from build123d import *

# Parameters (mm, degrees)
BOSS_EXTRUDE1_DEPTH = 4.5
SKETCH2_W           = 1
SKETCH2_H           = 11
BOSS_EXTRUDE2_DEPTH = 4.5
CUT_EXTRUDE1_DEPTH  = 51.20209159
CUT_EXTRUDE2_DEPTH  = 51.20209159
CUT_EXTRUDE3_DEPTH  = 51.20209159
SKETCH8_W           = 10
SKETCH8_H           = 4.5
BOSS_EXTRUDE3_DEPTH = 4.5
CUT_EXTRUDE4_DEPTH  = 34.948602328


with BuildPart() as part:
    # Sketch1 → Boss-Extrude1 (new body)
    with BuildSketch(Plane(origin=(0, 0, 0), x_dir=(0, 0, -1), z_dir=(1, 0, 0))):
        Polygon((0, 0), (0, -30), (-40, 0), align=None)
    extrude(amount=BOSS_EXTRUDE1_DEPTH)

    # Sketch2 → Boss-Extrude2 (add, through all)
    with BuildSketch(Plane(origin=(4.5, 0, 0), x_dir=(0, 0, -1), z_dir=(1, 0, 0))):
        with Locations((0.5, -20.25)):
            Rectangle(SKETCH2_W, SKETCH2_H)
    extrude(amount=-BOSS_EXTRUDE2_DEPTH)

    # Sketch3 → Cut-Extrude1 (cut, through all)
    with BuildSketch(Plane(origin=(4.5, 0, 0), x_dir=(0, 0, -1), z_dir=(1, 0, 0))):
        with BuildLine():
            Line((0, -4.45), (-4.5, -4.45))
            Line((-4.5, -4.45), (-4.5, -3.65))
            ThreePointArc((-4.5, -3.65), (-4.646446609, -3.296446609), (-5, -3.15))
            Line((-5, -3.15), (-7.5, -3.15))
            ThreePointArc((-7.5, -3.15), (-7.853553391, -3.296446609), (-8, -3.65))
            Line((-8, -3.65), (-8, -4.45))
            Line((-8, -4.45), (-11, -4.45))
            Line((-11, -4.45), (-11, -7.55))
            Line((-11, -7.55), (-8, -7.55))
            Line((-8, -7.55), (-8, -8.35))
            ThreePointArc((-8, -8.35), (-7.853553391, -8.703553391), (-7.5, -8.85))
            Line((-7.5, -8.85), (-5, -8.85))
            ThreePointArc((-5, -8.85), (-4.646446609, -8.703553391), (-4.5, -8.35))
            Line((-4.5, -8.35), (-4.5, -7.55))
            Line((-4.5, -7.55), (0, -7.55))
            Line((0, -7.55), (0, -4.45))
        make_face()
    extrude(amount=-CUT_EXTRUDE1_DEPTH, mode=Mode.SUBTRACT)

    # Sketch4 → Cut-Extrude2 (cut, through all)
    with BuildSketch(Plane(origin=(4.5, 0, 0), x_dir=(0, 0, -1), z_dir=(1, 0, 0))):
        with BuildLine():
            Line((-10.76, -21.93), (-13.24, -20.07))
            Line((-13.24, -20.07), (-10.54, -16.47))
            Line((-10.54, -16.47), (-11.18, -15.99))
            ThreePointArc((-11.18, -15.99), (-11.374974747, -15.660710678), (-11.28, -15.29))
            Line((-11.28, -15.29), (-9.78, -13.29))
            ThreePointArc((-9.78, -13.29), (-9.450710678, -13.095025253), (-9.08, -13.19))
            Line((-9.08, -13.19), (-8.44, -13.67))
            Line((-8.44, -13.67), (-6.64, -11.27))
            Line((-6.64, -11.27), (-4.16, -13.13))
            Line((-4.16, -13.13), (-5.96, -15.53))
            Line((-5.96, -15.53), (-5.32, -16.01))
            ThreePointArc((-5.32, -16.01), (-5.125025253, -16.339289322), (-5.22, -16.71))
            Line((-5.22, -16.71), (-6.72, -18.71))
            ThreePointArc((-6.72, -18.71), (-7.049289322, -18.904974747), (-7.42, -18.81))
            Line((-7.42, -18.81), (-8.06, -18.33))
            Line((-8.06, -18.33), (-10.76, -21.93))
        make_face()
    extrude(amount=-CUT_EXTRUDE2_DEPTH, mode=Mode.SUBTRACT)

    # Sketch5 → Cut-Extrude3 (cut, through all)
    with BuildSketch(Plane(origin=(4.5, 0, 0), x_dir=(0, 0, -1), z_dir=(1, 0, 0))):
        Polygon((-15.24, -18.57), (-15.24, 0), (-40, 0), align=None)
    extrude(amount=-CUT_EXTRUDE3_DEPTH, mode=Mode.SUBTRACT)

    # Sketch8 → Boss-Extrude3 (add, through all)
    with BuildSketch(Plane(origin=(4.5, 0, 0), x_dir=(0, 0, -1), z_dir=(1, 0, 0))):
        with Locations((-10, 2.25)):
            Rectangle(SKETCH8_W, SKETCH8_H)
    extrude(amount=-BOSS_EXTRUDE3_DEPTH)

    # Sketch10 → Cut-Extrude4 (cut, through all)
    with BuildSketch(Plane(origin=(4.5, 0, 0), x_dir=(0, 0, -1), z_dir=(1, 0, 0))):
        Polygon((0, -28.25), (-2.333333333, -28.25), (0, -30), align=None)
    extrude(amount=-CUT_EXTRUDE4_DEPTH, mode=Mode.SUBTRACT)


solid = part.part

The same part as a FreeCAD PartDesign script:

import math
import FreeCAD as App
import Part
import Sketcher
from FreeCAD import Vector
Q = App.Units.Quantity


def add_polygon(sketch, points):
    """Adds a closed chain of lines whose ends are joined by coincident constraints."""
    first, n = sketch.GeometryCount, len(points)
    for a, b in zip(points, points[1:] + points[:1]):
        sketch.addGeometry(Part.LineSegment(App.Vector(*a, 0), App.Vector(*b, 0)), False)
    for i in range(n):
        sketch.addConstraint(Sketcher.Constraint("Coincident", first + i, 2, first + (i + 1) % n, 1))

doc = App.newDocument("Part")
body = doc.addObject("PartDesign::Body", "Body")

sketch1 = body.newObject("Sketcher::SketchObject", "Sketch")
sketch1.AttachmentSupport = (doc.getObject("YZ_Plane"), [""])
sketch1.MapMode = "FlatFace"
add_polygon(sketch1, [(-30, 0), (0, 0), (0, 40)])
sketch1.addConstraint(Sketcher.Constraint("Horizontal", 0))
sketch1.addConstraint(Sketcher.Constraint("Vertical", 1))
sketch1.addConstraint(Sketcher.Constraint("Coincident", 0, 2, -1, 1))
sketch1.addConstraint(Sketcher.Constraint("DistanceX", 0, 1, 0, 2, Q("30 mm")))
sketch1.addConstraint(Sketcher.Constraint("DistanceY", 1, 1, 1, 2, Q("40 mm")))
pad1 = body.newObject("PartDesign::Pad", "Pad")
pad1.Profile = sketch1
pad1.Length = 4.5

sketch2 = body.newObject("Sketcher::SketchObject", "Sketch001")
sketch2.AttachmentSupport = (doc.getObject("YZ_Plane"), [""])
sketch2.MapMode = "FlatFace"
sketch2.AttachmentOffset = App.Placement(Vector(0, 0, 4.5), App.Rotation())
add_polygon(sketch2, [(-14.8, 0), (-25.8, 0), (-25.8, -1), (-14.8, -1)])
sketch2.addConstraint(Sketcher.Constraint("Horizontal", 0))
sketch2.addConstraint(Sketcher.Constraint("Vertical", 1))
sketch2.addConstraint(Sketcher.Constraint("Horizontal", 2))
sketch2.addConstraint(Sketcher.Constraint("Vertical", 3))
sketch2.addConstraint(Sketcher.Constraint("PointOnObject", 0, 2, -1))
sketch2.addConstraint(Sketcher.Constraint("DistanceX", 0, 2, 0, 1, Q("11 mm")))
sketch2.addConstraint(Sketcher.Constraint("DistanceY", 1, 2, 1, 1, Q("1 mm")))
sketch2.addConstraint(Sketcher.Constraint("DistanceX", 0, 2, -1, 1, Q("25.75 mm")))
pad2 = body.newObject("PartDesign::Pad", "Pad001")
pad2.Profile = sketch2
pad2.Length = 4.5
pad2.Reversed = True

sketch3 = body.newObject("Sketcher::SketchObject", "Sketch002")
sketch3.AttachmentSupport = (doc.getObject("YZ_Plane"), [""])
sketch3.MapMode = "FlatFace"
sketch3.AttachmentOffset = App.Placement(Vector(0, 0, 4.5), App.Rotation())
sketch3.addGeometry(Part.LineSegment(Vector(-4.45, 0, 0), Vector(-4.45, 4.5, 0)), False)
sketch3.addGeometry(Part.LineSegment(Vector(-4.45, 4.5, 0), Vector(-3.65, 4.5, 0)), False)
sketch3.addGeometry(Part.ArcOfCircle(Part.Circle(Vector(-3.65, 5, 0), Vector(0, 0, 1), 0.5), math.radians(-90), math.radians(0)), False)
sketch3.addGeometry(Part.LineSegment(Vector(-3.15, 5, 0), Vector(-3.15, 7.5, 0)), False)
sketch3.addGeometry(Part.ArcOfCircle(Part.Circle(Vector(-3.65, 7.5, 0), Vector(0, 0, 1), 0.5), math.radians(0), math.radians(90)), False)
sketch3.addGeometry(Part.LineSegment(Vector(-3.65, 8, 0), Vector(-4.45, 8, 0)), False)
sketch3.addGeometry(Part.LineSegment(Vector(-4.45, 8, 0), Vector(-4.45, 11, 0)), False)
sketch3.addGeometry(Part.LineSegment(Vector(-4.45, 11, 0), Vector(-7.55, 11, 0)), False)
sketch3.addGeometry(Part.LineSegment(Vector(-7.55, 11, 0), Vector(-7.55, 8, 0)), False)
sketch3.addGeometry(Part.LineSegment(Vector(-7.55, 8, 0), Vector(-8.35, 8, 0)), False)
sketch3.addGeometry(Part.ArcOfCircle(Part.Circle(Vector(-8.35, 7.5, 0), Vector(0, 0, 1), 0.5), math.radians(90), math.radians(180)), False)
sketch3.addGeometry(Part.LineSegment(Vector(-8.85, 7.5, 0), Vector(-8.85, 5, 0)), False)
sketch3.addGeometry(Part.ArcOfCircle(Part.Circle(Vector(-8.35, 5, 0), Vector(0, 0, 1), 0.5), math.radians(180), math.radians(270)), False)
sketch3.addGeometry(Part.LineSegment(Vector(-8.35, 4.5, 0), Vector(-7.55, 4.5, 0)), False)
sketch3.addGeometry(Part.LineSegment(Vector(-7.55, 4.5, 0), Vector(-7.55, 0, 0)), False)
sketch3.addGeometry(Part.LineSegment(Vector(-7.55, 0, 0), Vector(-4.45, 0, 0)), False)
sketch3.addConstraint(Sketcher.Constraint("Coincident", 0, 2, 1, 1))
sketch3.addConstraint(Sketcher.Constraint("Tangent", 1, 2, 2, 1))
sketch3.addConstraint(Sketcher.Constraint("Tangent", 2, 2, 3, 1))
sketch3.addConstraint(Sketcher.Constraint("Tangent", 3, 2, 4, 1))
sketch3.addConstraint(Sketcher.Constraint("Tangent", 4, 2, 5, 1))
sketch3.addConstraint(Sketcher.Constraint("Coincident", 5, 2, 6, 1))
sketch3.addConstraint(Sketcher.Constraint("Coincident", 6, 2, 7, 1))
sketch3.addConstraint(Sketcher.Constraint("Coincident", 7, 2, 8, 1))
sketch3.addConstraint(Sketcher.Constraint("Coincident", 8, 2, 9, 1))
sketch3.addConstraint(Sketcher.Constraint("Tangent", 9, 2, 10, 1))
sketch3.addConstraint(Sketcher.Constraint("Tangent", 10, 2, 11, 1))
sketch3.addConstraint(Sketcher.Constraint("Tangent", 11, 2, 12, 1))
sketch3.addConstraint(Sketcher.Constraint("Tangent", 12, 2, 13, 1))
sketch3.addConstraint(Sketcher.Constraint("Coincident", 13, 2, 14, 1))
sketch3.addConstraint(Sketcher.Constraint("Coincident", 14, 2, 15, 1))
sketch3.addConstraint(Sketcher.Constraint("Coincident", 15, 2, 0, 1))
sketch3.addConstraint(Sketcher.Constraint("Vertical", 0))
sketch3.addConstraint(Sketcher.Constraint("Horizontal", 1))
sketch3.addConstraint(Sketcher.Constraint("Vertical", 3))
sketch3.addConstraint(Sketcher.Constraint("Horizontal", 5))
sketch3.addConstraint(Sketcher.Constraint("Vertical", 6))
sketch3.addConstraint(Sketcher.Constraint("Horizontal", 7))
sketch3.addConstraint(Sketcher.Constraint("Vertical", 8))
sketch3.addConstraint(Sketcher.Constraint("Horizontal", 9))
sketch3.addConstraint(Sketcher.Constraint("Vertical", 11))
sketch3.addConstraint(Sketcher.Constraint("Horizontal", 13))
sketch3.addConstraint(Sketcher.Constraint("Vertical", 14))
sketch3.addConstraint(Sketcher.Constraint("Horizontal", 15))
sketch3.addConstraint(Sketcher.Constraint("Equal", 2, 4))
sketch3.addConstraint(Sketcher.Constraint("Equal", 4, 10))
sketch3.addConstraint(Sketcher.Constraint("Equal", 10, 12))
sketch3.addConstraint(Sketcher.Constraint("PointOnObject", 14, 2, -1))
sketch3.addConstraint(Sketcher.Constraint("Horizontal", 4, 3, 10, 3))
sketch3.addConstraint(Sketcher.Constraint("Horizontal", 2, 3, 12, 3))
sketch3.addConstraint(Sketcher.Constraint("Vertical", 0, 2, 5, 2))
sketch3.addConstraint(Sketcher.Constraint("Vertical", 8, 2, 13, 2))
sketch3.addConstraint(Sketcher.Constraint("Equal", 5, 9))
sketch3.addConstraint(Sketcher.Constraint("Radius", 2, Q("0.5 mm")))
sketch3.addConstraint(Sketcher.Constraint("DistanceY", 6, 1, 6, 2, Q("3 mm")))
sketch3.addConstraint(Sketcher.Constraint("DistanceX", 1, 1, 1, 2, Q("0.8 mm")))
sketch3.addConstraint(Sketcher.Constraint("DistanceX", 7, 2, 7, 1, Q("3.1 mm")))
sketch3.addConstraint(Sketcher.Constraint("DistanceY", 0, 1, 0, 2, Q("4.5 mm")))
sketch3.addConstraint(Sketcher.Constraint("DistanceY", 3, 1, 3, 2, Q("2.5 mm")))
sketch3.addConstraint(Sketcher.Constraint("DistanceX", 2, 3, -1, 1, Q("3.65 mm")))
pocket1 = body.newObject("PartDesign::Pocket", "Pocket")
pocket1.Profile = sketch3
pocket1.Type = "ThroughAll"

sketch4 = body.newObject("Sketcher::SketchObject", "Sketch003")
sketch4.AttachmentSupport = (doc.getObject("YZ_Plane"), [""])
sketch4.MapMode = "FlatFace"
sketch4.AttachmentOffset = App.Placement(Vector(0, 0, 4.5), App.Rotation())
sketch4.addGeometry(Part.LineSegment(Vector(-20.1, 13.2, 0), Vector(-21.9, 10.8, 0)), False)
sketch4.addGeometry(Part.LineSegment(Vector(-21.9, 10.8, 0), Vector(-18.3, 8.1, 0)), False)
sketch4.addGeometry(Part.LineSegment(Vector(-18.3, 8.1, 0), Vector(-18.8, 7.4, 0)), False)
sketch4.addGeometry(Part.ArcOfCircle(Part.Circle(Vector(-18.4, 7.1, 0), Vector(0, 0, 1), 0.5), math.radians(143), math.radians(233)), False)
sketch4.addGeometry(Part.LineSegment(Vector(-18.7, 6.7, 0), Vector(-16.7, 5.2, 0)), False)
sketch4.addGeometry(Part.ArcOfCircle(Part.Circle(Vector(-16.4, 5.6, 0), Vector(0, 0, 1), 0.5), math.radians(-127), math.radians(-37)), False)
sketch4.addGeometry(Part.LineSegment(Vector(-16, 5.3, 0), Vector(-15.5, 6, 0)), False)
sketch4.addGeometry(Part.LineSegment(Vector(-15.5, 6, 0), Vector(-13.1, 4.2, 0)), False)
sketch4.addGeometry(Part.LineSegment(Vector(-13.1, 4.2, 0), Vector(-11.3, 6.6, 0)), False)
sketch4.addGeometry(Part.LineSegment(Vector(-11.3, 6.6, 0), Vector(-13.7, 8.4, 0)), False)
sketch4.addGeometry(Part.LineSegment(Vector(-13.7, 8.4, 0), Vector(-13.2, 9.1, 0)), False)
sketch4.addGeometry(Part.ArcOfCircle(Part.Circle(Vector(-13.6, 9.4, 0), Vector(0, 0, 1), 0.5), math.radians(-37), math.radians(53)), False)
sketch4.addGeometry(Part.LineSegment(Vector(-13.3, 9.8, 0), Vector(-15.3, 11.3, 0)), False)
sketch4.addGeometry(Part.ArcOfCircle(Part.Circle(Vector(-15.6, 10.9, 0), Vector(0, 0, 1), 0.5), math.radians(53), math.radians(143)), False)
sketch4.addGeometry(Part.LineSegment(Vector(-16, 11.2, 0), Vector(-16.5, 10.5, 0)), False)
sketch4.addGeometry(Part.LineSegment(Vector(-16.5, 10.5, 0), Vector(-20.1, 13.2, 0)), False)
sketch4.addConstraint(Sketcher.Constraint("Coincident", 0, 2, 1, 1))
sketch4.addConstraint(Sketcher.Constraint("Coincident", 1, 2, 2, 1))
sketch4.addConstraint(Sketcher.Constraint("Tangent", 2, 2, 3, 1))
sketch4.addConstraint(Sketcher.Constraint("Tangent", 3, 2, 4, 1))
sketch4.addConstraint(Sketcher.Constraint("Tangent", 4, 2, 5, 1))
sketch4.addConstraint(Sketcher.Constraint("Tangent", 5, 2, 6, 1))
sketch4.addConstraint(Sketcher.Constraint("Coincident", 6, 2, 7, 1))
sketch4.addConstraint(Sketcher.Constraint("Coincident", 7, 2, 8, 1))
sketch4.addConstraint(Sketcher.Constraint("Coincident", 8, 2, 9, 1))
sketch4.addConstraint(Sketcher.Constraint("Coincident", 9, 2, 10, 1))
sketch4.addConstraint(Sketcher.Constraint("Tangent", 10, 2, 11, 1))
sketch4.addConstraint(Sketcher.Constraint("Tangent", 11, 2, 12, 1))
sketch4.addConstraint(Sketcher.Constraint("Tangent", 12, 2, 13, 1))
sketch4.addConstraint(Sketcher.Constraint("Tangent", 13, 2, 14, 1))
sketch4.addConstraint(Sketcher.Constraint("Coincident", 14, 2, 15, 1))
sketch4.addConstraint(Sketcher.Constraint("Coincident", 15, 2, 0, 1))
sketch4.addConstraint(Sketcher.Constraint("Equal", 3, 5))
sketch4.addConstraint(Sketcher.Constraint("Equal", 5, 11))
sketch4.addConstraint(Sketcher.Constraint("Equal", 11, 13))
sketch4.addConstraint(Sketcher.Constraint("Perpendicular", 0, 1))
sketch4.addConstraint(Sketcher.Constraint("Perpendicular", 1, 2))
sketch4.addConstraint(Sketcher.Constraint("Perpendicular", 2, 4))
sketch4.addConstraint(Sketcher.Constraint("Perpendicular", 4, 6))
sketch4.addConstraint(Sketcher.Constraint("Perpendicular", 6, 7))
sketch4.addConstraint(Sketcher.Constraint("Perpendicular", 7, 8))
sketch4.addConstraint(Sketcher.Constraint("Perpendicular", 8, 9))
sketch4.addConstraint(Sketcher.Constraint("Perpendicular", 9, 10))
sketch4.addConstraint(Sketcher.Constraint("Perpendicular", 10, 12))
sketch4.addConstraint(Sketcher.Constraint("Perpendicular", 12, 14))
sketch4.addConstraint(Sketcher.Constraint("Perpendicular", 14, 15))
sketch4.addConstraint(Sketcher.Constraint("Equal", 2, 6))
sketch4.addConstraint(Sketcher.Constraint("Equal", 0, 8))
sketch4.addConstraint(Sketcher.Constraint("Equal", 7, 9))
sketch4.addConstraint(Sketcher.Constraint("Equal", 6, 10))
sketch4.addConstraint(Sketcher.Constraint("Equal", 4, 12))
sketch4.addConstraint(Sketcher.Constraint("Radius", 3, Q("0.5 mm")))
sketch4.addConstraint(Sketcher.Constraint("Distance", 7, Q("3 mm")))
sketch4.addConstraint(Sketcher.Constraint("DistanceX", 3, 3, 5, 3, Q("2 mm")))
sketch4.addConstraint(Sketcher.Constraint("Distance", 0, Q("3.1 mm")))
sketch4.addConstraint(Sketcher.Constraint("Distance", 1, Q("4.5 mm")))
sketch4.addConstraint(Sketcher.Constraint("Distance", 2, Q("0.8 mm")))
sketch4.addConstraint(Sketcher.Constraint("Distance", 4, Q("2.5 mm")))
sketch4.addConstraint(Sketcher.Constraint("DistanceX", 3, 3, -1, 1, Q("18.41 mm")))
sketch4.addConstraint(Sketcher.Constraint("DistanceY", -1, 1, 3, 3, Q("7.12 mm")))
pocket2 = body.newObject("PartDesign::Pocket", "Pocket001")
pocket2.Profile = sketch4
pocket2.Type = "ThroughAll"

sketch5 = body.newObject("Sketcher::SketchObject", "Sketch004")
sketch5.AttachmentSupport = (doc.getObject("YZ_Plane"), [""])
sketch5.MapMode = "FlatFace"
sketch5.AttachmentOffset = App.Placement(Vector(0, 0, 4.5), App.Rotation())
add_polygon(sketch5, [(-19, 15), (0, 15), (0, 40)])
sketch5.addConstraint(Sketcher.Constraint("Horizontal", 0))
sketch5.addConstraint(Sketcher.Constraint("Vertical", 1))
sketch5.addConstraint(Sketcher.Constraint("PointOnObject", 0, 2, -2))
sketch5.addConstraint(Sketcher.Constraint("DistanceY", -1, 1, 1, 2, Q("40 mm")))
sketch5.addConstraint(Sketcher.Constraint("DistanceX", 0, 1, 0, 2, Q("18.57 mm")))
sketch5.addConstraint(Sketcher.Constraint("DistanceY", 1, 1, 1, 2, Q("24.76 mm")))
pocket3 = body.newObject("PartDesign::Pocket", "Pocket002")
pocket3.Profile = sketch5
pocket3.Type = "ThroughAll"

sketch6 = body.newObject("Sketcher::SketchObject", "Sketch005")
sketch6.AttachmentSupport = (doc.getObject("YZ_Plane"), [""])
sketch6.MapMode = "FlatFace"
sketch6.AttachmentOffset = App.Placement(Vector(0, 0, 4.5), App.Rotation())
add_polygon(sketch6, [(4.5, 15), (0, 15), (0, 5), (4.5, 5)])
sketch6.addConstraint(Sketcher.Constraint("Horizontal", 0))
sketch6.addConstraint(Sketcher.Constraint("Vertical", 1))
sketch6.addConstraint(Sketcher.Constraint("Horizontal", 2))
sketch6.addConstraint(Sketcher.Constraint("Vertical", 3))
sketch6.addConstraint(Sketcher.Constraint("PointOnObject", 0, 2, -2))
sketch6.addConstraint(Sketcher.Constraint("DistanceY", 1, 2, 1, 1, Q("10 mm")))
sketch6.addConstraint(Sketcher.Constraint("DistanceX", 0, 2, 0, 1, Q("4.5 mm")))
sketch6.addConstraint(Sketcher.Constraint("DistanceY", -1, 1, 0, 2, Q("15 mm")))
pad3 = body.newObject("PartDesign::Pad", "Pad002")
pad3.Profile = sketch6
pad3.Length = 4.5
pad3.Reversed = True

sketch7 = body.newObject("Sketcher::SketchObject", "Sketch006")
sketch7.AttachmentSupport = (doc.getObject("YZ_Plane"), [""])
sketch7.MapMode = "FlatFace"
sketch7.AttachmentOffset = App.Placement(Vector(0, 0, 4.5), App.Rotation())
add_polygon(sketch7, [(-28.2, 0), (-28.2, 2.3), (-30, 0)])
sketch7.addConstraint(Sketcher.Constraint("Vertical", 0))
sketch7.addConstraint(Sketcher.Constraint("Horizontal", 2))
sketch7.addConstraint(Sketcher.Constraint("PointOnObject", 1, 2, -1))
sketch7.addConstraint(Sketcher.Constraint("DistanceX", 1, 2, -1, 1, Q("30 mm")))
sketch7.addConstraint(Sketcher.Constraint("DistanceX", 2, 1, 2, 2, Q("1.75 mm")))
sketch7.addConstraint(Sketcher.Constraint("DistanceY", 0, 1, 0, 2, Q("2.333333 mm")))
pocket4 = body.newObject("PartDesign::Pocket", "Pocket003")
pocket4.Profile = sketch7
pocket4.Type = "ThroughAll"

doc.recompute()
